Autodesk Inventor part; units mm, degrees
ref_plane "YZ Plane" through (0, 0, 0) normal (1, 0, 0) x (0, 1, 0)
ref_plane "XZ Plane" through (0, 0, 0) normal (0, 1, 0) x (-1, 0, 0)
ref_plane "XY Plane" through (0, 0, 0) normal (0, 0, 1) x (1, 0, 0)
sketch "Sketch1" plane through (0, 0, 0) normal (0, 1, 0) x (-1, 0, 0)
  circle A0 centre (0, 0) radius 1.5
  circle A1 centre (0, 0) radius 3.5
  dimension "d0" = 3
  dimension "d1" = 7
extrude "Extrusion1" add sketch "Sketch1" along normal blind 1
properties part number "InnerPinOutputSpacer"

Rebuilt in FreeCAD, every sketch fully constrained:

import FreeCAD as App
import Part
import Sketcher
from FreeCAD import Vector
Q = App.Units.Quantity

doc = App.newDocument("Part")
body = doc.addObject("PartDesign::Body", "Body")

# Sketch on XZ plane
sketch1 = body.newObject("Sketcher::SketchObject", "Sketch")
sketch1.AttachmentSupport = (doc.getObject("XZ_Plane"), [""])
sketch1.MapMode = "FlatFace"
sketch1.addGeometry([
    Part.Circle(Vector(0, 0, 0), Vector(0, 0, 1), 3.5),
    Part.Circle(Vector(0, 0, 0), Vector(0, 0, 1), 1.5),
], False)
sketch1.addConstraint([
    Sketcher.Constraint("Coincident", 0, 3, -1, 1),
    Sketcher.Constraint("Coincident", 1, 3, -1, 1),
    Sketcher.Constraint("Diameter", 0, Q("7 mm")),
    Sketcher.Constraint("Diameter", 1, Q("3 mm")),
])
pad1 = body.newObject("PartDesign::Pad", "Pad")
pad1.Profile = sketch1
pad1.Length = 1
pad1.Reversed = True

doc.recompute()
